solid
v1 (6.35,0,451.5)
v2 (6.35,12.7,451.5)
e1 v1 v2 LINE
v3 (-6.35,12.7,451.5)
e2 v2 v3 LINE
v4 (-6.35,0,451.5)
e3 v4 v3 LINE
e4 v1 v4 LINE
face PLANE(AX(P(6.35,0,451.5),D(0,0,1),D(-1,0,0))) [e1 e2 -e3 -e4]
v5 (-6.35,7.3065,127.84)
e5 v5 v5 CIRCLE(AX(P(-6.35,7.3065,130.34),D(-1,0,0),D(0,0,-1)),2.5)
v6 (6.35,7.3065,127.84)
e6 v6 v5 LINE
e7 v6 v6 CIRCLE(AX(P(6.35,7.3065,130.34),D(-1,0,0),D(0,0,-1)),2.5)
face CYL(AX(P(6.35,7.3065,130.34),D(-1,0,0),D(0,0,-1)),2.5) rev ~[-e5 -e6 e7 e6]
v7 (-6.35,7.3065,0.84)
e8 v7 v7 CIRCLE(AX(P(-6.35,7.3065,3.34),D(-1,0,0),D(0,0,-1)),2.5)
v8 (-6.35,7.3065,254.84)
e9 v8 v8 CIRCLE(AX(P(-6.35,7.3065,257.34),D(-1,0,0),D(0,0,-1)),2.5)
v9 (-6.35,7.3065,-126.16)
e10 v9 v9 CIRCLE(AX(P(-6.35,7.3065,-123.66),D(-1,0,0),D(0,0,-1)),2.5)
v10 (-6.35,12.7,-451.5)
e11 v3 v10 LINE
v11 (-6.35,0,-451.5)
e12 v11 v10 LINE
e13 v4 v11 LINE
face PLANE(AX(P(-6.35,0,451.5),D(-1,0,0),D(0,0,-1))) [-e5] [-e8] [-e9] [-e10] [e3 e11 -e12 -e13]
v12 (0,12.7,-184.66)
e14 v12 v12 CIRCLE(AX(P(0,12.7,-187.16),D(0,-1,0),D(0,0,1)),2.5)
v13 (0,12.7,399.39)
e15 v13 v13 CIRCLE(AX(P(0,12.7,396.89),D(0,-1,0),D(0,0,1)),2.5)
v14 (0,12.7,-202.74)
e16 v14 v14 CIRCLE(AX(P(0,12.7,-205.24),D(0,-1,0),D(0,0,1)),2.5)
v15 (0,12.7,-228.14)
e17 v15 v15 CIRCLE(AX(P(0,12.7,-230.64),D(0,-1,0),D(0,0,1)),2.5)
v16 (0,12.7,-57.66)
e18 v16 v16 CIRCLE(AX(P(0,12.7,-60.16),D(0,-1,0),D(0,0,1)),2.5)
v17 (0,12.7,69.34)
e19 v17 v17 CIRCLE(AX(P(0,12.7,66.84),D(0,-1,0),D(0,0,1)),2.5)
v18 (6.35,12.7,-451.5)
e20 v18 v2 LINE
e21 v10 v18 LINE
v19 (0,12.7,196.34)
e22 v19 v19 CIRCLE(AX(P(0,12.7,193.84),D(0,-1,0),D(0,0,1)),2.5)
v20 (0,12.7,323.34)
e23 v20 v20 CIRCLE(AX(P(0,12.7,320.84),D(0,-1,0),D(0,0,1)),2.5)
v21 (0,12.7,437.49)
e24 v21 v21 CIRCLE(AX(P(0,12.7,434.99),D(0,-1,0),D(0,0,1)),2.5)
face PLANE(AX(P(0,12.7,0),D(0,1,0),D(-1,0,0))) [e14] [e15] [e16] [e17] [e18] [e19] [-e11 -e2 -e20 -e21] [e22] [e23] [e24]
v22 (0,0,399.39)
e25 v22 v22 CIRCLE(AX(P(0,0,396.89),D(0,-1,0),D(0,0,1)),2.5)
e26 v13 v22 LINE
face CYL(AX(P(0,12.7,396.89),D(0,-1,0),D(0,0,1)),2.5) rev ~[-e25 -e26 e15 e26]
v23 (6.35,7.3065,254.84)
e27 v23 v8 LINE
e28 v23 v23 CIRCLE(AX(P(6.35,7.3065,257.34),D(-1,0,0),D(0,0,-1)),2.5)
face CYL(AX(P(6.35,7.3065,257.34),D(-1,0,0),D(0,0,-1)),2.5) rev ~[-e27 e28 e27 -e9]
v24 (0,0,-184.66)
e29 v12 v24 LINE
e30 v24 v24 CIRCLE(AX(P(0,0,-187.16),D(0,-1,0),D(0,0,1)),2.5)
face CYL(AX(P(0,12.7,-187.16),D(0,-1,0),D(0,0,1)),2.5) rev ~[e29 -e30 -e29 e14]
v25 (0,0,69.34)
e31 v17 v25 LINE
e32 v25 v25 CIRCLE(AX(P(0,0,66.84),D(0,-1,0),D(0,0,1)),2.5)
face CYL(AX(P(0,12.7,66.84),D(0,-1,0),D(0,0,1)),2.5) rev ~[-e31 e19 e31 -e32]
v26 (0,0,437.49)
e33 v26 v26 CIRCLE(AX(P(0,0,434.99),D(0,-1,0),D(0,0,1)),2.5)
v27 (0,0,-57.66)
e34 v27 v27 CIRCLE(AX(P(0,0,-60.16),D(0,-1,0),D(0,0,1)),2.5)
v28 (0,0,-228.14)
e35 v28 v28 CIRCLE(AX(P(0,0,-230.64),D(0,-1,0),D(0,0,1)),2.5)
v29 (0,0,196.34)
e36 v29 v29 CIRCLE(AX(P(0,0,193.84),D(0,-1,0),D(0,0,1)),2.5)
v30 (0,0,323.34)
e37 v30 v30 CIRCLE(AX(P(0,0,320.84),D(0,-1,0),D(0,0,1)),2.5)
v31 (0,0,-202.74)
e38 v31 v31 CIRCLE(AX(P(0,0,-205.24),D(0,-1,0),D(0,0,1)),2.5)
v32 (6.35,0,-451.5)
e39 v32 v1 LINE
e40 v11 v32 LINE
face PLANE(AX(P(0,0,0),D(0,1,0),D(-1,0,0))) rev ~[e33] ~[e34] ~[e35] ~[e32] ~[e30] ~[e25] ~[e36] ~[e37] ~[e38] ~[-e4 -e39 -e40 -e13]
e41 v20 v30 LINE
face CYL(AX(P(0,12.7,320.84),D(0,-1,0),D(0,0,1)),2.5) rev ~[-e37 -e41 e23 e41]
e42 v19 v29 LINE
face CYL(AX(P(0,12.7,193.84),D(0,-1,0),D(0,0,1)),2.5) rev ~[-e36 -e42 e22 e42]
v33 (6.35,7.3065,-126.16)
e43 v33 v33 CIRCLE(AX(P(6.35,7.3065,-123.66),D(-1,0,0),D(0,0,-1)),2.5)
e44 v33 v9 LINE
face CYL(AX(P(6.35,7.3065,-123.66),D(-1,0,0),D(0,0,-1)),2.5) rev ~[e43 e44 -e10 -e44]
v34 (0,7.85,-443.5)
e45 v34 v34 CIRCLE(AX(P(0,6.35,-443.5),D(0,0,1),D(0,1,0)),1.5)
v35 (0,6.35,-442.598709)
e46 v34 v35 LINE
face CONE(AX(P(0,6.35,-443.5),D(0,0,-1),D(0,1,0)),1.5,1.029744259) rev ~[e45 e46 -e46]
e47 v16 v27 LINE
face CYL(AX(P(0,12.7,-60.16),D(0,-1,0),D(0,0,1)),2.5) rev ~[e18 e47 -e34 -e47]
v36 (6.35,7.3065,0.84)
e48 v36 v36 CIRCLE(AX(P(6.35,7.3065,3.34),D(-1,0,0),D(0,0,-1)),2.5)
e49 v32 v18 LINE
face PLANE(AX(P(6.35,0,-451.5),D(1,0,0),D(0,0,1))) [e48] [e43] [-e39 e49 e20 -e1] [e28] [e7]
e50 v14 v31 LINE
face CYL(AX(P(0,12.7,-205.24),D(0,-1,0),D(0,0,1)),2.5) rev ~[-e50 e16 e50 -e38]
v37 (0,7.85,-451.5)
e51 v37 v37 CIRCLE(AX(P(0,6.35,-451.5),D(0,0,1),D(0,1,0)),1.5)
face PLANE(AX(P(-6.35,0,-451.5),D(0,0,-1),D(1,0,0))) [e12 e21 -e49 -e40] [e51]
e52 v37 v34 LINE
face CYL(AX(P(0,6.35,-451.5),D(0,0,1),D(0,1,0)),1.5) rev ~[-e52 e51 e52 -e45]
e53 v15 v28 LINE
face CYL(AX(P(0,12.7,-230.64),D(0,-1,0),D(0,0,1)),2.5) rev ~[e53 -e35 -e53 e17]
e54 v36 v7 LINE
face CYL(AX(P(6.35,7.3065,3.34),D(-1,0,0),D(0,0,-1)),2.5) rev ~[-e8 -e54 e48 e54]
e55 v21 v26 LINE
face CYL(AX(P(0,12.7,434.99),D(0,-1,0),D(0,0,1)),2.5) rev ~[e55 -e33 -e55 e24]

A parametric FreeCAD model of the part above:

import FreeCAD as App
import Part
import Sketcher
Q = App.Units.Quantity

doc = App.newDocument("Part")
body = doc.addObject("PartDesign::Body", "Body")

# Sketch on XZ plane
sketch1 = doc.addObject("Sketcher::SketchObject", "Sketch")
body.addObject(sketch1)
sketch1.AttachmentSupport = (doc.XZ_Plane, [""])
sketch1.MapMode = "FlatFace"
sketch1.addGeometry(Part.LineSegment(App.Vector(6, -452, 0), App.Vector(-6, -452, 0)), False)
sketch1.addGeometry(Part.LineSegment(App.Vector(-6, -452, 0), App.Vector(-6, 452, 0)), False)
sketch1.addGeometry(Part.LineSegment(App.Vector(-6, 452, 0), App.Vector(6, 452, 0)), False)
sketch1.addGeometry(Part.LineSegment(App.Vector(6, 452, 0), App.Vector(6, -452, 0)), False)
sketch1.addConstraint(Sketcher.Constraint("Coincident", 0, 2, 1, 1))
sketch1.addConstraint(Sketcher.Constraint("Coincident", 1, 2, 2, 1))
sketch1.addConstraint(Sketcher.Constraint("Coincident", 2, 2, 3, 1))
sketch1.addConstraint(Sketcher.Constraint("Coincident", 3, 2, 0, 1))
sketch1.addConstraint(Sketcher.Constraint("Horizontal", 0))
sketch1.addConstraint(Sketcher.Constraint("Vertical", 1))
sketch1.addConstraint(Sketcher.Constraint("Horizontal", 2))
sketch1.addConstraint(Sketcher.Constraint("Vertical", 3))
sketch1.addConstraint(Sketcher.Constraint("Symmetric", 0, 2, 2, 2, -1, 1))
sketch1.addConstraint(Sketcher.Constraint("DistanceY", 1, 1, 1, 2, Q("903 mm")))
sketch1.addConstraint(Sketcher.Constraint("DistanceX", 0, 2, 0, 1, Q("12.7 mm")))
pad1 = doc.addObject("PartDesign::Pad", "Pad")
body.addObject(pad1)
pad1.Profile = sketch1
pad1.Length = 12.7
pad1.Reversed = True

# Sketch on XZ plane
sketch2 = doc.addObject("Sketcher::SketchObject", "Sketch001")
body.addObject(sketch2)
sketch2.AttachmentSupport = (doc.XZ_Plane, [""])
sketch2.MapMode = "FlatFace"
sketch2.AttachmentOffset = App.Placement(App.Vector(0, 0, -12.7), App.Rotation())
sketch2.addGeometry(Part.Circle(App.Vector(0, 435, 0), App.Vector(0, 0, 1), 2.5), False)
sketch2.addConstraint(Sketcher.Constraint("PointOnObject", 0, 3, -2))
sketch2.addConstraint(Sketcher.Constraint("Diameter", 0, Q("5 mm")))
sketch2.addConstraint(Sketcher.Constraint("DistanceY", -1, 1, 0, 3, Q("434.99 mm")))
doc.recompute()
hole = doc.addObject("PartDesign::Hole", "Hole")
body.addObject(hole)
hole.Profile = sketch2
hole.ThreadType = "None"
hole.Diameter = 5
hole.DepthType = "ThroughAll"
hole.Reversed = True

# Sketch on XZ plane
sketch3 = doc.addObject("Sketcher::SketchObject", "Sketch002")
body.addObject(sketch3)
sketch3.AttachmentSupport = (doc.XZ_Plane, [""])
sketch3.MapMode = "FlatFace"
sketch3.AttachmentOffset = App.Placement(App.Vector(0, 0, -12.7), App.Rotation())
sketch3.addGeometry(Part.Circle(App.Vector(0, 396.9, 0), App.Vector(0, 0, 1), 2.5), False)
sketch3.addConstraint(Sketcher.Constraint("PointOnObject", 0, 3, -2))
sketch3.addConstraint(Sketcher.Constraint("Diameter", 0, Q("5 mm")))
sketch3.addConstraint(Sketcher.Constraint("DistanceY", -1, 1, 0, 3, Q("396.89 mm")))
doc.recompute()
hole2 = doc.addObject("PartDesign::Hole", "Hole001")
body.addObject(hole2)
hole2.Profile = sketch3
hole2.ThreadType = "None"
hole2.Diameter = 5
hole2.DepthType = "ThroughAll"
hole2.Reversed = True

# Sketch on XZ plane
sketch4 = doc.addObject("Sketcher::SketchObject", "Sketch003")
body.addObject(sketch4)
sketch4.AttachmentSupport = (doc.XZ_Plane, [""])
sketch4.MapMode = "FlatFace"
sketch4.AttachmentOffset = App.Placement(App.Vector(0, 0, -12.7), App.Rotation())
sketch4.addGeometry(Part.Circle(App.Vector(0, 320.8, 0), App.Vector(0, 0, 1), 2.5), False)
sketch4.addConstraint(Sketcher.Constraint("PointOnObject", 0, 3, -2))
sketch4.addConstraint(Sketcher.Constraint("Diameter", 0, Q("5 mm")))
sketch4.addConstraint(Sketcher.Constraint("DistanceY", -1, 1, 0, 3, Q("320.84 mm")))
doc.recompute()
hole3 = doc.addObject("PartDesign::Hole", "Hole002")
body.addObject(hole3)
hole3.Profile = sketch4
hole3.ThreadType = "None"
hole3.Diameter = 5
hole3.DepthType = "ThroughAll"
hole3.Reversed = True

# Sketch on XZ plane
sketch5 = doc.addObject("Sketcher::SketchObject", "Sketch004")
body.addObject(sketch5)
sketch5.AttachmentSupport = (doc.XZ_Plane, [""])
sketch5.MapMode = "FlatFace"
sketch5.AttachmentOffset = App.Placement(App.Vector(0, 0, -12.7), App.Rotation())
sketch5.addGeometry(Part.Circle(App.Vector(0, 193.8, 0), App.Vector(0, 0, 1), 2.5), False)
sketch5.addConstraint(Sketcher.Constraint("PointOnObject", 0, 3, -2))
sketch5.addConstraint(Sketcher.Constraint("Diameter", 0, Q("5 mm")))
sketch5.addConstraint(Sketcher.Constraint("DistanceY", -1, 1, 0, 3, Q("193.84 mm")))
doc.recompute()
hole4 = doc.addObject("PartDesign::Hole", "Hole003")
body.addObject(hole4)
hole4.Profile = sketch5
hole4.ThreadType = "None"
hole4.Diameter = 5
hole4.DepthType = "ThroughAll"
hole4.Reversed = True

# Sketch on XZ plane
sketch6 = doc.addObject("Sketcher::SketchObject", "Sketch005")
body.addObject(sketch6)
sketch6.AttachmentSupport = (doc.XZ_Plane, [""])
sketch6.MapMode = "FlatFace"
sketch6.AttachmentOffset = App.Placement(App.Vector(0, 0, -12.7), App.Rotation())
sketch6.addGeometry(Part.Circle(App.Vector(0, 66.8, 0), App.Vector(0, 0, 1), 2.5), False)
sketch6.addConstraint(Sketcher.Constraint("PointOnObject", 0, 3, -2))
sketch6.addConstraint(Sketcher.Constraint("Diameter", 0, Q("5 mm")))
sketch6.addConstraint(Sketcher.Constraint("DistanceY", -1, 1, 0, 3, Q("66.84 mm")))
doc.recompute()
hole5 = doc.addObject("PartDesign::Hole", "Hole004")
body.addObject(hole5)
hole5.Profile = sketch6
hole5.ThreadType = "None"
hole5.Diameter = 5
hole5.DepthType = "ThroughAll"
hole5.Reversed = True

# Sketch on XZ plane
sketch7 = doc.addObject("Sketcher::SketchObject", "Sketch006")
body.addObject(sketch7)
sketch7.AttachmentSupport = (doc.XZ_Plane, [""])
sketch7.MapMode = "FlatFace"
sketch7.AttachmentOffset = App.Placement(App.Vector(0, 0, -12.7), App.Rotation())
sketch7.addGeometry(Part.Circle(App.Vector(0, -60.2, 0), App.Vector(0, 0, 1), 2.5), False)
sketch7.addConstraint(Sketcher.Constraint("PointOnObject", 0, 3, -2))
sketch7.addConstraint(Sketcher.Constraint("Diameter", 0, Q("5 mm")))
sketch7.addConstraint(Sketcher.Constraint("DistanceY", 0, 3, -1, 1, Q("60.16 mm")))
doc.recompute()
hole6 = doc.addObject("PartDesign::Hole", "Hole005")
body.addObject(hole6)
hole6.Profile = sketch7
hole6.ThreadType = "None"
hole6.Diameter = 5
hole6.DepthType = "ThroughAll"
hole6.Reversed = True

# Sketch on XZ plane
sketch8 = doc.addObject("Sketcher::SketchObject", "Sketch007")
body.addObject(sketch8)
sketch8.AttachmentSupport = (doc.XZ_Plane, [""])
sketch8.MapMode = "FlatFace"
sketch8.AttachmentOffset = App.Placement(App.Vector(0, 0, -12.7), App.Rotation())
sketch8.addGeometry(Part.Circle(App.Vector(0, -187.2, 0), App.Vector(0, 0, 1), 2.5), False)
sketch8.addConstraint(Sketcher.Constraint("PointOnObject", 0, 3, -2))
sketch8.addConstraint(Sketcher.Constraint("Diameter", 0, Q("5 mm")))
sketch8.addConstraint(Sketcher.Constraint("DistanceY", 0, 3, -1, 1, Q("187.16 mm")))
doc.recompute()
hole7 = doc.addObject("PartDesign::Hole", "Hole006")
body.addObject(hole7)
hole7.Profile = sketch8
hole7.ThreadType = "None"
hole7.Diameter = 5
hole7.DepthType = "ThroughAll"
hole7.Reversed = True

# Sketch on XZ plane
sketch9 = doc.addObject("Sketcher::SketchObject", "Sketch008")
body.addObject(sketch9)
sketch9.AttachmentSupport = (doc.XZ_Plane, [""])
sketch9.MapMode = "FlatFace"
sketch9.AttachmentOffset = App.Placement(App.Vector(0, 0, -12.7), App.Rotation())
sketch9.addGeometry(Part.Circle(App.Vector(0, -205.2, 0), App.Vector(0, 0, 1), 2.5), False)
sketch9.addConstraint(Sketcher.Constraint("PointOnObject", 0, 3, -2))
sketch9.addConstraint(Sketcher.Constraint("Diameter", 0, Q("5 mm")))
sketch9.addConstraint(Sketcher.Constraint("DistanceY", 0, 3, -1, 1, Q("205.24 mm")))
doc.recompute()
hole8 = doc.addObject("PartDesign::Hole", "Hole007")
body.addObject(hole8)
hole8.Profile = sketch9
hole8.ThreadType = "None"
hole8.Diameter = 5
hole8.DepthType = "ThroughAll"
hole8.Reversed = True

# Sketch on XZ plane
sketch10 = doc.addObject("Sketcher::SketchObject", "Sketch009")
body.addObject(sketch10)
sketch10.AttachmentSupport = (doc.XZ_Plane, [""])
sketch10.MapMode = "FlatFace"
sketch10.AttachmentOffset = App.Placement(App.Vector(0, 0, -12.7), App.Rotation())
sketch10.addGeometry(Part.Circle(App.Vector(0, -230.6, 0), App.Vector(0, 0, 1), 2.5), False)
sketch10.addConstraint(Sketcher.Constraint("PointOnObject", 0, 3, -2))
sketch10.addConstraint(Sketcher.Constraint("Diameter", 0, Q("5 mm")))
sketch10.addConstraint(Sketcher.Constraint("DistanceY", 0, 3, -1, 1, Q("230.64 mm")))
doc.recompute()
hole9 = doc.addObject("PartDesign::Hole", "Hole008")
body.addObject(hole9)
hole9.Profile = sketch10
hole9.ThreadType = "None"
hole9.Diameter = 5
hole9.DepthType = "ThroughAll"
hole9.Reversed = True

# Sketch on XY plane
sketch11 = doc.addObject("Sketcher::SketchObject", "Sketch010")
body.addObject(sketch11)
sketch11.AttachmentSupport = (doc.XY_Plane, [""])
sketch11.MapMode = "FlatFace"
sketch11.AttachmentOffset = App.Placement(App.Vector(0, 0, -451.5), App.Rotation())
sketch11.addGeometry(Part.Circle(App.Vector(0, 6.3, 0), App.Vector(0, 0, 1), 1.5), False)
sketch11.addConstraint(Sketcher.Constraint("PointOnObject", 0, 3, -2))
sketch11.addConstraint(Sketcher.Constraint("Diameter", 0, Q("3 mm")))
sketch11.addConstraint(Sketcher.Constraint("DistanceY", -1, 1, 0, 3, Q("6.35 mm")))
doc.recompute()
hole10 = doc.addObject("PartDesign::Hole", "Hole009")
body.addObject(hole10)
hole10.Profile = sketch11
hole10.ThreadType = "None"
hole10.Diameter = 3
hole10.DepthType = "Dimension"
hole10.Depth = 8
hole10.DrillPoint = "Angled"
hole10.DrillPointAngle = 118
hole10.Reversed = True

# Sketch on YZ plane
sketch12 = doc.addObject("Sketcher::SketchObject", "Sketch011")
body.addObject(sketch12)
sketch12.AttachmentSupport = (doc.YZ_Plane, [""])
sketch12.MapMode = "FlatFace"
sketch12.AttachmentOffset = App.Placement(App.Vector(0, 0, 6.35), App.Rotation())
sketch12.addGeometry(Part.Circle(App.Vector(7.3, 257.3, 0), App.Vector(0, 0, 1), 2.5), False)
sketch12.addConstraint(Sketcher.Constraint("Diameter", 0, Q("5 mm")))
sketch12.addConstraint(Sketcher.Constraint("DistanceY", -1, 1, 0, 3, Q("257.34 mm")))
sketch12.addConstraint(Sketcher.Constraint("DistanceX", -1, 1, 0, 3, Q("7.3065 mm")))
doc.recompute()
hole11 = doc.addObject("PartDesign::Hole", "Hole010")
body.addObject(hole11)
hole11.Profile = sketch12
hole11.ThreadType = "None"
hole11.Diameter = 5
hole11.DepthType = "ThroughAll"

# Sketch on YZ plane
sketch13 = doc.addObject("Sketcher::SketchObject", "Sketch012")
body.addObject(sketch13)
sketch13.AttachmentSupport = (doc.YZ_Plane, [""])
sketch13.MapMode = "FlatFace"
sketch13.AttachmentOffset = App.Placement(App.Vector(0, 0, 6.35), App.Rotation())
sketch13.addGeometry(Part.Circle(App.Vector(7.3, 130.3, 0), App.Vector(0, 0, 1), 2.5), False)
sketch13.addConstraint(Sketcher.Constraint("Diameter", 0, Q("5 mm")))
sketch13.addConstraint(Sketcher.Constraint("DistanceY", -1, 1, 0, 3, Q("130.34 mm")))
sketch13.addConstraint(Sketcher.Constraint("DistanceX", -1, 1, 0, 3, Q("7.3065 mm")))
doc.recompute()
hole12 = doc.addObject("PartDesign::Hole", "Hole011")
body.addObject(hole12)
hole12.Profile = sketch13
hole12.ThreadType = "None"
hole12.Diameter = 5
hole12.DepthType = "ThroughAll"

# Sketch on YZ plane
sketch14 = doc.addObject("Sketcher::SketchObject", "Sketch013")
body.addObject(sketch14)
sketch14.AttachmentSupport = (doc.YZ_Plane, [""])
sketch14.MapMode = "FlatFace"
sketch14.AttachmentOffset = App.Placement(App.Vector(0, 0, 6.35), App.Rotation())
sketch14.addGeometry(Part.Circle(App.Vector(7.3, 3.3, 0), App.Vector(0, 0, 1), 2.5), False)
sketch14.addConstraint(Sketcher.Constraint("Diameter", 0, Q("5 mm")))
sketch14.addConstraint(Sketcher.Constraint("DistanceY", -1, 1, 0, 3, Q("3.34 mm")))
sketch14.addConstraint(Sketcher.Constraint("DistanceX", -1, 1, 0, 3, Q("7.3065 mm")))
doc.recompute()
hole13 = doc.addObject("PartDesign::Hole", "Hole012")
body.addObject(hole13)
hole13.Profile = sketch14
hole13.ThreadType = "None"
hole13.Diameter = 5
hole13.DepthType = "ThroughAll"

# Sketch on YZ plane
sketch15 = doc.addObject("Sketcher::SketchObject", "Sketch014")
body.addObject(sketch15)
sketch15.AttachmentSupport = (doc.YZ_Plane, [""])
sketch15.MapMode = "FlatFace"
sketch15.AttachmentOffset = App.Placement(App.Vector(0, 0, 6.35), App.Rotation())
sketch15.addGeometry(Part.Circle(App.Vector(7.3, -123.7, 0), App.Vector(0, 0, 1), 2.5), False)
sketch15.addConstraint(Sketcher.Constraint("Diameter", 0, Q("5 mm")))
sketch15.addConstraint(Sketcher.Constraint("DistanceY", 0, 3, -1, 1, Q("123.66 mm")))
sketch15.addConstraint(Sketcher.Constraint("DistanceX", -1, 1, 0, 3, Q("7.3065 mm")))
doc.recompute()
hole14 = doc.addObject("PartDesign::Hole", "Hole013")
body.addObject(hole14)
hole14.Profile = sketch15
hole14.ThreadType = "None"
hole14.Diameter = 5
hole14.DepthType = "ThroughAll"

doc.recompute()
